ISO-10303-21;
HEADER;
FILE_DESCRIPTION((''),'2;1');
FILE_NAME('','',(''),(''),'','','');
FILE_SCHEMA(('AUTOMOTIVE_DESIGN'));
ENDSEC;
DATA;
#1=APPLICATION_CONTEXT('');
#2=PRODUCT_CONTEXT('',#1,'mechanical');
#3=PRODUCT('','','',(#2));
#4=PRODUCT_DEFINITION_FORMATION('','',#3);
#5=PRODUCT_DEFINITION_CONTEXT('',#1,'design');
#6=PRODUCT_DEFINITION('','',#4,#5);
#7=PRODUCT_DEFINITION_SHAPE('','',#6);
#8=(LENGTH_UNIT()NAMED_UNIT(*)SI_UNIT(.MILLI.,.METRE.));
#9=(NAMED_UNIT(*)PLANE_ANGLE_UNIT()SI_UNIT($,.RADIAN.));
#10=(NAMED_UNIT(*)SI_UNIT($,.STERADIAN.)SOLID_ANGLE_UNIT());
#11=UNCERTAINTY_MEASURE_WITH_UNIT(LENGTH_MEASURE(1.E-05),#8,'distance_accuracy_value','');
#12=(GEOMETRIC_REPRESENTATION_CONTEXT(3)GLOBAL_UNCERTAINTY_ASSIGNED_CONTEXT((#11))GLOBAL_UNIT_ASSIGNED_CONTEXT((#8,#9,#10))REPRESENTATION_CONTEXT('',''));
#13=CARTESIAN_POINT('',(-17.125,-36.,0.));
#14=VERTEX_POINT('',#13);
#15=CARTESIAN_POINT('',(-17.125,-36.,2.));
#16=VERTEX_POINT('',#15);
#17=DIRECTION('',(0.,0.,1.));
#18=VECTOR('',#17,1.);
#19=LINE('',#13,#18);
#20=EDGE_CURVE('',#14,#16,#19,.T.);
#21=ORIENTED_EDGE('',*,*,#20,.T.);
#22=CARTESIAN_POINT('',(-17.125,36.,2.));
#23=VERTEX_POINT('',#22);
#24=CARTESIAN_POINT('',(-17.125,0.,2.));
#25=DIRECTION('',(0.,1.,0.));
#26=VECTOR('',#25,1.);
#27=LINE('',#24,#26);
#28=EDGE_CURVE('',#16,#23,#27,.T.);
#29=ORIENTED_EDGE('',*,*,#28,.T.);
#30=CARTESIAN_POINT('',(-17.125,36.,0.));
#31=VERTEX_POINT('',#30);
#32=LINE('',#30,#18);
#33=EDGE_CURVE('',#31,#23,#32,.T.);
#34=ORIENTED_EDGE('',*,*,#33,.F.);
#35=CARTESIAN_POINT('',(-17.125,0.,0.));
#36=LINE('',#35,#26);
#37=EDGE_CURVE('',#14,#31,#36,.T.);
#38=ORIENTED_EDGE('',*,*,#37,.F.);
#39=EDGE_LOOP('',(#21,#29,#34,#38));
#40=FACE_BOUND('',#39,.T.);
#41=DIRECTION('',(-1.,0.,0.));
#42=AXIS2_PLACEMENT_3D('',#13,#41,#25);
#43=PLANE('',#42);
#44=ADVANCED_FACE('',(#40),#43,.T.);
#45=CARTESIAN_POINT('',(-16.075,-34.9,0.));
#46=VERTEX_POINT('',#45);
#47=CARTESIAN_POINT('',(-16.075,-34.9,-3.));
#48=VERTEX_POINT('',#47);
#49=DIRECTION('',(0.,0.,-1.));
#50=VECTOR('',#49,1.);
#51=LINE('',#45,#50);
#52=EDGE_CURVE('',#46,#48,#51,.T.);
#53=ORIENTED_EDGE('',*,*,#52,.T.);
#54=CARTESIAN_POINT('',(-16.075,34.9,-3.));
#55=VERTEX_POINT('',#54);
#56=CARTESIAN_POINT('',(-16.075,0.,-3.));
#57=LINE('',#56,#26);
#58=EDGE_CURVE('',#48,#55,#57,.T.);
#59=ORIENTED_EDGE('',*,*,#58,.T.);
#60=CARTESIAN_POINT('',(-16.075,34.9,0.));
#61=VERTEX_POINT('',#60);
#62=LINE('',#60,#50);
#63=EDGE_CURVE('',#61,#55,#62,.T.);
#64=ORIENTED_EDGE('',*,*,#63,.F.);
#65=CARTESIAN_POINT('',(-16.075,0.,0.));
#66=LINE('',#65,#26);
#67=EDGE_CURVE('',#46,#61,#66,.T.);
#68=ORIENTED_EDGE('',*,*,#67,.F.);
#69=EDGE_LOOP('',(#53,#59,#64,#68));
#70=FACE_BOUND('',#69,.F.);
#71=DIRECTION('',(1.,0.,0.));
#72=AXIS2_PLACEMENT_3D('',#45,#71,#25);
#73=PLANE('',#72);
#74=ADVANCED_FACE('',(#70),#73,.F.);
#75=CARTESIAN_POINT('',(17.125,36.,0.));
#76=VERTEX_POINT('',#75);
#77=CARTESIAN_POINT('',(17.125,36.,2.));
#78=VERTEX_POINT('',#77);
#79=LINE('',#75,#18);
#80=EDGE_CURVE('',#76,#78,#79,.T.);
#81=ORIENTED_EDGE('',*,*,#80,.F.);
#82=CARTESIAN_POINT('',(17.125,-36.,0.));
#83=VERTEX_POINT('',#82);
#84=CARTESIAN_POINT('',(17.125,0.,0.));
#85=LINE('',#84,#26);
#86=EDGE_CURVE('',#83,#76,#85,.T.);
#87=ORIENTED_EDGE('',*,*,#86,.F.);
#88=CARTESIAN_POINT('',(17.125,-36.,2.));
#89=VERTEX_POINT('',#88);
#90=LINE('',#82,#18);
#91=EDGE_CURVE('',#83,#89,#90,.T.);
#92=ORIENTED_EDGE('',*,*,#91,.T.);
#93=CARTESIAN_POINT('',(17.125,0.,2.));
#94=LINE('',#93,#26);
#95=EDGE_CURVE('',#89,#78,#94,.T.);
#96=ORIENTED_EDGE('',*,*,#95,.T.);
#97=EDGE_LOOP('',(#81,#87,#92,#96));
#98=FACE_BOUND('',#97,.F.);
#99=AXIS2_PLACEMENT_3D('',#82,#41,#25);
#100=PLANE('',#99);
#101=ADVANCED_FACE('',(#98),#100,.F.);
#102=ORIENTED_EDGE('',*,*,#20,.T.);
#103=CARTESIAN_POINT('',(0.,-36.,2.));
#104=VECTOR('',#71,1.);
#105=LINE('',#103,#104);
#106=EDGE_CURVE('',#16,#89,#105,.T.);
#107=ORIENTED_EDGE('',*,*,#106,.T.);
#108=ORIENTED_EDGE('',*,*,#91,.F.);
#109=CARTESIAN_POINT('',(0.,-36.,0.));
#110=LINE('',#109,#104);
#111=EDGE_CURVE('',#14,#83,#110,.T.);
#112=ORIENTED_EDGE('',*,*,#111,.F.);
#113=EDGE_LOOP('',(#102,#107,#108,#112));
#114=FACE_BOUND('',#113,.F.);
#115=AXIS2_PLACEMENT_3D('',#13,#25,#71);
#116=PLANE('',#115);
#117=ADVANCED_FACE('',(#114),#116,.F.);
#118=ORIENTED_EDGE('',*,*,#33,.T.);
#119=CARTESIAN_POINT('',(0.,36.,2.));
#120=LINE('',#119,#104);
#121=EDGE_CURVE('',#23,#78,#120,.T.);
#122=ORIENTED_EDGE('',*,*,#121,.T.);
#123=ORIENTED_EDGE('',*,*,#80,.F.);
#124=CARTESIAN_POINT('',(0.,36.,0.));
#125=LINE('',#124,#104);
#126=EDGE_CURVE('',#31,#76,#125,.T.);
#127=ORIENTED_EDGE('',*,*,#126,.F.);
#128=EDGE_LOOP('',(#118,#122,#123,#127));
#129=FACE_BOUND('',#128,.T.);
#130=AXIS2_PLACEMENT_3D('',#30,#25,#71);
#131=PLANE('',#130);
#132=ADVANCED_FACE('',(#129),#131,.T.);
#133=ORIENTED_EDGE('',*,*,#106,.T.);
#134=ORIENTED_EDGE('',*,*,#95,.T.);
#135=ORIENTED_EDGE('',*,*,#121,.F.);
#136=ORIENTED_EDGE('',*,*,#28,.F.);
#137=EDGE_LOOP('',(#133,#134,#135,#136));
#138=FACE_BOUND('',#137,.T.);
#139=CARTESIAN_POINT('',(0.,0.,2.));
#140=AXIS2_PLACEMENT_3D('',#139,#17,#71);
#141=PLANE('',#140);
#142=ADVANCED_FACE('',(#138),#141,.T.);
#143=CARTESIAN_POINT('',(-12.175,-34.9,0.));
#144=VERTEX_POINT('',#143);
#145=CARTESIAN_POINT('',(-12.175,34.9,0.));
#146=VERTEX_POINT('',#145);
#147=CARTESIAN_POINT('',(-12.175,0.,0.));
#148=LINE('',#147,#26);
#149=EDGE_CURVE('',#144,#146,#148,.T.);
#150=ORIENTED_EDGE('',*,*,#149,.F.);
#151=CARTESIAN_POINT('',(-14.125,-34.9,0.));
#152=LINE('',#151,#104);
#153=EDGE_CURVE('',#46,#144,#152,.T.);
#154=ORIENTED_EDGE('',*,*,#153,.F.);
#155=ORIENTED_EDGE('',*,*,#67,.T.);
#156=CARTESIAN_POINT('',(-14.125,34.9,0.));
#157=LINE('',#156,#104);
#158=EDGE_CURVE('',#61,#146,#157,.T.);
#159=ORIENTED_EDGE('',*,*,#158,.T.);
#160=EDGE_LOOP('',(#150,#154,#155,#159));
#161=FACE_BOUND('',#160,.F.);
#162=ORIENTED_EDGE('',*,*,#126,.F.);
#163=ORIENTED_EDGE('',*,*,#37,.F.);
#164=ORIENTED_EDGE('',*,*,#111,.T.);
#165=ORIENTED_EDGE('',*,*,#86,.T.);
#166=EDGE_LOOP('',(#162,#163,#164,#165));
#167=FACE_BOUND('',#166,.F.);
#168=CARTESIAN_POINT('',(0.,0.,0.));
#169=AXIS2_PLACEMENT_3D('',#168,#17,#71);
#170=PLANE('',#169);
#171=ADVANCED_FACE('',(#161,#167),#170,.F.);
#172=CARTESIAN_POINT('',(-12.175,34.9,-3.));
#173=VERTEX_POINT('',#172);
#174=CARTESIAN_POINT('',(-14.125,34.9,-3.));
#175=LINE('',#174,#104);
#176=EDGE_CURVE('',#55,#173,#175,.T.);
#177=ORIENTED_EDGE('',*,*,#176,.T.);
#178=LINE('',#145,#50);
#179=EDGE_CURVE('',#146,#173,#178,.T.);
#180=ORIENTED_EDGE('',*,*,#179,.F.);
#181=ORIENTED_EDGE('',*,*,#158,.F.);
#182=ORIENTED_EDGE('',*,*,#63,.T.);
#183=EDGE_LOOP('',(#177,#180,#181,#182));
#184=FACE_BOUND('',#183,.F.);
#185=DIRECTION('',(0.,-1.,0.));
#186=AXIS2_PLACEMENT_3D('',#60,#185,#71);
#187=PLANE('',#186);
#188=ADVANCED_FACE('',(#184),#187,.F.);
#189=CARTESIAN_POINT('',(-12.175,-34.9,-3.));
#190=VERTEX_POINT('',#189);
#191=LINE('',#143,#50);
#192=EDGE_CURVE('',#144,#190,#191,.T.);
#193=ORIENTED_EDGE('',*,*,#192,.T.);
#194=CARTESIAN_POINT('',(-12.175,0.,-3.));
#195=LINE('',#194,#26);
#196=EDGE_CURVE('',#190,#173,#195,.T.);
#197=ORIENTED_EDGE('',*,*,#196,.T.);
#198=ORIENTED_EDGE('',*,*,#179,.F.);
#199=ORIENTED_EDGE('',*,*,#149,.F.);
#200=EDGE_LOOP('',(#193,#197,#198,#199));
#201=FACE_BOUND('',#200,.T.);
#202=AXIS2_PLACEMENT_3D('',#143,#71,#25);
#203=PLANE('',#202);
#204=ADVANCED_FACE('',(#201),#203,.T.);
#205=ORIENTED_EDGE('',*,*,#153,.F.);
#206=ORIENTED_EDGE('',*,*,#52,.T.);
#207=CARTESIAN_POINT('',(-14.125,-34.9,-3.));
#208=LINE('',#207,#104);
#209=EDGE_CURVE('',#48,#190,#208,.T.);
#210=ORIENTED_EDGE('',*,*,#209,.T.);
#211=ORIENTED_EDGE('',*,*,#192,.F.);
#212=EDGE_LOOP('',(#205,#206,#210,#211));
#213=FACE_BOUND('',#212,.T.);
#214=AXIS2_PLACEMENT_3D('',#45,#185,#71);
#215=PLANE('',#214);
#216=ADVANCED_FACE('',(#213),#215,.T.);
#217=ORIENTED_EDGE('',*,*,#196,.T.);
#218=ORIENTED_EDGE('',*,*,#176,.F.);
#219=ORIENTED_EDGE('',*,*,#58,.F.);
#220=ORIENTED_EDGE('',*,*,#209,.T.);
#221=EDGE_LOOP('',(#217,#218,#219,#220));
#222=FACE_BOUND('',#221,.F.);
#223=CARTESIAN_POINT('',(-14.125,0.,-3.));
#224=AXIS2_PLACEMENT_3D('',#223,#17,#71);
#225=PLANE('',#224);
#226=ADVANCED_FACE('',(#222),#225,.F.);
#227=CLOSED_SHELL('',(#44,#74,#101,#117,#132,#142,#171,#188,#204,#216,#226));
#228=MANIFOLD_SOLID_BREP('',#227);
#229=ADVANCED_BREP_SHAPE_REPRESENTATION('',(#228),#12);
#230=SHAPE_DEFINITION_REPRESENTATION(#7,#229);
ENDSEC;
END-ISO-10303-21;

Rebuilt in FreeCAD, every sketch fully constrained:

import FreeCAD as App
import Part
import Sketcher


def add_polygon(sketch, points):
    """Adds a closed chain of lines whose ends are joined by coincident constraints."""
    first, n = sketch.GeometryCount, len(points)
    for a, b in zip(points, points[1:] + points[:1]):
        sketch.addGeometry(Part.LineSegment(App.Vector(*a, 0), App.Vector(*b, 0)), False)
    for i in range(n):
        sketch.addConstraint(Sketcher.Constraint("Coincident", first + i, 2, first + (i + 1) % n, 1))

doc = App.newDocument("Part")
params = doc.addObject("Spreadsheet::Sheet", "Params")
for row, (alias, value) in enumerate([
    ("sketch1_height", "72 mm"),
    ("sketch1_width", "34.25 mm"),
    ("pad1_length", "2 mm"),
    ("sketch2_width", "3.9 mm"),
    ("sketch2_height", "69.8 mm"),
    ("pad2_length", "3 mm"),
], start=1):
    params.set(f"A{row}", alias)
    params.set(f"B{row}", "=" + value)
    params.setAlias(f"B{row}", alias)

body = doc.addObject("PartDesign::Body", "Body")

sketch1 = doc.addObject("Sketcher::SketchObject", "Sketch")
body.addObject(sketch1)
sketch1.AttachmentSupport = (doc.XY_Plane, [""])
sketch1.MapMode = "FlatFace"
add_polygon(sketch1, [(-17, 36), (-17, -36), (17, -36), (17, 36)])
sketch1.addConstraint(Sketcher.Constraint("Vertical", 0))
sketch1.addConstraint(Sketcher.Constraint("Horizontal", 1))
sketch1.addConstraint(Sketcher.Constraint("Vertical", 2))
sketch1.addConstraint(Sketcher.Constraint("Horizontal", 3))
sketch1.addConstraint(Sketcher.Constraint("Symmetric", 0, 2, 2, 2, -1, 1))
sketch1.addConstraint(Sketcher.Constraint("DistanceY", 0, 2, 0, 1, 72.0))
sketch1.addConstraint(Sketcher.Constraint("DistanceX", 1, 1, 1, 2, 34.25))
sketch1.setExpression("Constraints[9]", "Params.sketch1_height")
sketch1.setExpression("Constraints[10]", "Params.sketch1_width")
pad1 = doc.addObject("PartDesign::Pad", "Pad")
body.addObject(pad1)
pad1.Profile = sketch1
pad1.setExpression("Length", "Params.pad1_length")

sketch2 = doc.addObject("Sketcher::SketchObject", "Sketch001")
body.addObject(sketch2)
sketch2.AttachmentSupport = (doc.XY_Plane, [""])
sketch2.MapMode = "FlatFace"
add_polygon(sketch2, [(-16.1, 34.9), (-16.1, -34.9), (-12.2, -34.9), (-12.2, 34.9)])
sketch2.addConstraint(Sketcher.Constraint("Vertical", 0))
sketch2.addConstraint(Sketcher.Constraint("Horizontal", 1))
sketch2.addConstraint(Sketcher.Constraint("Vertical", 2))
sketch2.addConstraint(Sketcher.Constraint("Horizontal", 3))
sketch2.addConstraint(Sketcher.Constraint("DistanceX", 1, 1, 1, 2, 3.9))
sketch2.addConstraint(Sketcher.Constraint("DistanceY", 0, 2, 0, 1, 69.8))
sketch2.addConstraint(Sketcher.Constraint("DistanceY", 0, 2, -1, 1, 34.9))
sketch2.addConstraint(Sketcher.Constraint("DistanceX", 0, 2, -1, 1, 16.075))
sketch2.setExpression("Constraints[8]", "Params.sketch2_width")
sketch2.setExpression("Constraints[9]", "Params.sketch2_height")
pad2 = doc.addObject("PartDesign::Pad", "Pad001")
body.addObject(pad2)
pad2.Profile = sketch2
pad2.setExpression("Length", "Params.pad2_length")
pad2.Reversed = True

doc.recompute()
